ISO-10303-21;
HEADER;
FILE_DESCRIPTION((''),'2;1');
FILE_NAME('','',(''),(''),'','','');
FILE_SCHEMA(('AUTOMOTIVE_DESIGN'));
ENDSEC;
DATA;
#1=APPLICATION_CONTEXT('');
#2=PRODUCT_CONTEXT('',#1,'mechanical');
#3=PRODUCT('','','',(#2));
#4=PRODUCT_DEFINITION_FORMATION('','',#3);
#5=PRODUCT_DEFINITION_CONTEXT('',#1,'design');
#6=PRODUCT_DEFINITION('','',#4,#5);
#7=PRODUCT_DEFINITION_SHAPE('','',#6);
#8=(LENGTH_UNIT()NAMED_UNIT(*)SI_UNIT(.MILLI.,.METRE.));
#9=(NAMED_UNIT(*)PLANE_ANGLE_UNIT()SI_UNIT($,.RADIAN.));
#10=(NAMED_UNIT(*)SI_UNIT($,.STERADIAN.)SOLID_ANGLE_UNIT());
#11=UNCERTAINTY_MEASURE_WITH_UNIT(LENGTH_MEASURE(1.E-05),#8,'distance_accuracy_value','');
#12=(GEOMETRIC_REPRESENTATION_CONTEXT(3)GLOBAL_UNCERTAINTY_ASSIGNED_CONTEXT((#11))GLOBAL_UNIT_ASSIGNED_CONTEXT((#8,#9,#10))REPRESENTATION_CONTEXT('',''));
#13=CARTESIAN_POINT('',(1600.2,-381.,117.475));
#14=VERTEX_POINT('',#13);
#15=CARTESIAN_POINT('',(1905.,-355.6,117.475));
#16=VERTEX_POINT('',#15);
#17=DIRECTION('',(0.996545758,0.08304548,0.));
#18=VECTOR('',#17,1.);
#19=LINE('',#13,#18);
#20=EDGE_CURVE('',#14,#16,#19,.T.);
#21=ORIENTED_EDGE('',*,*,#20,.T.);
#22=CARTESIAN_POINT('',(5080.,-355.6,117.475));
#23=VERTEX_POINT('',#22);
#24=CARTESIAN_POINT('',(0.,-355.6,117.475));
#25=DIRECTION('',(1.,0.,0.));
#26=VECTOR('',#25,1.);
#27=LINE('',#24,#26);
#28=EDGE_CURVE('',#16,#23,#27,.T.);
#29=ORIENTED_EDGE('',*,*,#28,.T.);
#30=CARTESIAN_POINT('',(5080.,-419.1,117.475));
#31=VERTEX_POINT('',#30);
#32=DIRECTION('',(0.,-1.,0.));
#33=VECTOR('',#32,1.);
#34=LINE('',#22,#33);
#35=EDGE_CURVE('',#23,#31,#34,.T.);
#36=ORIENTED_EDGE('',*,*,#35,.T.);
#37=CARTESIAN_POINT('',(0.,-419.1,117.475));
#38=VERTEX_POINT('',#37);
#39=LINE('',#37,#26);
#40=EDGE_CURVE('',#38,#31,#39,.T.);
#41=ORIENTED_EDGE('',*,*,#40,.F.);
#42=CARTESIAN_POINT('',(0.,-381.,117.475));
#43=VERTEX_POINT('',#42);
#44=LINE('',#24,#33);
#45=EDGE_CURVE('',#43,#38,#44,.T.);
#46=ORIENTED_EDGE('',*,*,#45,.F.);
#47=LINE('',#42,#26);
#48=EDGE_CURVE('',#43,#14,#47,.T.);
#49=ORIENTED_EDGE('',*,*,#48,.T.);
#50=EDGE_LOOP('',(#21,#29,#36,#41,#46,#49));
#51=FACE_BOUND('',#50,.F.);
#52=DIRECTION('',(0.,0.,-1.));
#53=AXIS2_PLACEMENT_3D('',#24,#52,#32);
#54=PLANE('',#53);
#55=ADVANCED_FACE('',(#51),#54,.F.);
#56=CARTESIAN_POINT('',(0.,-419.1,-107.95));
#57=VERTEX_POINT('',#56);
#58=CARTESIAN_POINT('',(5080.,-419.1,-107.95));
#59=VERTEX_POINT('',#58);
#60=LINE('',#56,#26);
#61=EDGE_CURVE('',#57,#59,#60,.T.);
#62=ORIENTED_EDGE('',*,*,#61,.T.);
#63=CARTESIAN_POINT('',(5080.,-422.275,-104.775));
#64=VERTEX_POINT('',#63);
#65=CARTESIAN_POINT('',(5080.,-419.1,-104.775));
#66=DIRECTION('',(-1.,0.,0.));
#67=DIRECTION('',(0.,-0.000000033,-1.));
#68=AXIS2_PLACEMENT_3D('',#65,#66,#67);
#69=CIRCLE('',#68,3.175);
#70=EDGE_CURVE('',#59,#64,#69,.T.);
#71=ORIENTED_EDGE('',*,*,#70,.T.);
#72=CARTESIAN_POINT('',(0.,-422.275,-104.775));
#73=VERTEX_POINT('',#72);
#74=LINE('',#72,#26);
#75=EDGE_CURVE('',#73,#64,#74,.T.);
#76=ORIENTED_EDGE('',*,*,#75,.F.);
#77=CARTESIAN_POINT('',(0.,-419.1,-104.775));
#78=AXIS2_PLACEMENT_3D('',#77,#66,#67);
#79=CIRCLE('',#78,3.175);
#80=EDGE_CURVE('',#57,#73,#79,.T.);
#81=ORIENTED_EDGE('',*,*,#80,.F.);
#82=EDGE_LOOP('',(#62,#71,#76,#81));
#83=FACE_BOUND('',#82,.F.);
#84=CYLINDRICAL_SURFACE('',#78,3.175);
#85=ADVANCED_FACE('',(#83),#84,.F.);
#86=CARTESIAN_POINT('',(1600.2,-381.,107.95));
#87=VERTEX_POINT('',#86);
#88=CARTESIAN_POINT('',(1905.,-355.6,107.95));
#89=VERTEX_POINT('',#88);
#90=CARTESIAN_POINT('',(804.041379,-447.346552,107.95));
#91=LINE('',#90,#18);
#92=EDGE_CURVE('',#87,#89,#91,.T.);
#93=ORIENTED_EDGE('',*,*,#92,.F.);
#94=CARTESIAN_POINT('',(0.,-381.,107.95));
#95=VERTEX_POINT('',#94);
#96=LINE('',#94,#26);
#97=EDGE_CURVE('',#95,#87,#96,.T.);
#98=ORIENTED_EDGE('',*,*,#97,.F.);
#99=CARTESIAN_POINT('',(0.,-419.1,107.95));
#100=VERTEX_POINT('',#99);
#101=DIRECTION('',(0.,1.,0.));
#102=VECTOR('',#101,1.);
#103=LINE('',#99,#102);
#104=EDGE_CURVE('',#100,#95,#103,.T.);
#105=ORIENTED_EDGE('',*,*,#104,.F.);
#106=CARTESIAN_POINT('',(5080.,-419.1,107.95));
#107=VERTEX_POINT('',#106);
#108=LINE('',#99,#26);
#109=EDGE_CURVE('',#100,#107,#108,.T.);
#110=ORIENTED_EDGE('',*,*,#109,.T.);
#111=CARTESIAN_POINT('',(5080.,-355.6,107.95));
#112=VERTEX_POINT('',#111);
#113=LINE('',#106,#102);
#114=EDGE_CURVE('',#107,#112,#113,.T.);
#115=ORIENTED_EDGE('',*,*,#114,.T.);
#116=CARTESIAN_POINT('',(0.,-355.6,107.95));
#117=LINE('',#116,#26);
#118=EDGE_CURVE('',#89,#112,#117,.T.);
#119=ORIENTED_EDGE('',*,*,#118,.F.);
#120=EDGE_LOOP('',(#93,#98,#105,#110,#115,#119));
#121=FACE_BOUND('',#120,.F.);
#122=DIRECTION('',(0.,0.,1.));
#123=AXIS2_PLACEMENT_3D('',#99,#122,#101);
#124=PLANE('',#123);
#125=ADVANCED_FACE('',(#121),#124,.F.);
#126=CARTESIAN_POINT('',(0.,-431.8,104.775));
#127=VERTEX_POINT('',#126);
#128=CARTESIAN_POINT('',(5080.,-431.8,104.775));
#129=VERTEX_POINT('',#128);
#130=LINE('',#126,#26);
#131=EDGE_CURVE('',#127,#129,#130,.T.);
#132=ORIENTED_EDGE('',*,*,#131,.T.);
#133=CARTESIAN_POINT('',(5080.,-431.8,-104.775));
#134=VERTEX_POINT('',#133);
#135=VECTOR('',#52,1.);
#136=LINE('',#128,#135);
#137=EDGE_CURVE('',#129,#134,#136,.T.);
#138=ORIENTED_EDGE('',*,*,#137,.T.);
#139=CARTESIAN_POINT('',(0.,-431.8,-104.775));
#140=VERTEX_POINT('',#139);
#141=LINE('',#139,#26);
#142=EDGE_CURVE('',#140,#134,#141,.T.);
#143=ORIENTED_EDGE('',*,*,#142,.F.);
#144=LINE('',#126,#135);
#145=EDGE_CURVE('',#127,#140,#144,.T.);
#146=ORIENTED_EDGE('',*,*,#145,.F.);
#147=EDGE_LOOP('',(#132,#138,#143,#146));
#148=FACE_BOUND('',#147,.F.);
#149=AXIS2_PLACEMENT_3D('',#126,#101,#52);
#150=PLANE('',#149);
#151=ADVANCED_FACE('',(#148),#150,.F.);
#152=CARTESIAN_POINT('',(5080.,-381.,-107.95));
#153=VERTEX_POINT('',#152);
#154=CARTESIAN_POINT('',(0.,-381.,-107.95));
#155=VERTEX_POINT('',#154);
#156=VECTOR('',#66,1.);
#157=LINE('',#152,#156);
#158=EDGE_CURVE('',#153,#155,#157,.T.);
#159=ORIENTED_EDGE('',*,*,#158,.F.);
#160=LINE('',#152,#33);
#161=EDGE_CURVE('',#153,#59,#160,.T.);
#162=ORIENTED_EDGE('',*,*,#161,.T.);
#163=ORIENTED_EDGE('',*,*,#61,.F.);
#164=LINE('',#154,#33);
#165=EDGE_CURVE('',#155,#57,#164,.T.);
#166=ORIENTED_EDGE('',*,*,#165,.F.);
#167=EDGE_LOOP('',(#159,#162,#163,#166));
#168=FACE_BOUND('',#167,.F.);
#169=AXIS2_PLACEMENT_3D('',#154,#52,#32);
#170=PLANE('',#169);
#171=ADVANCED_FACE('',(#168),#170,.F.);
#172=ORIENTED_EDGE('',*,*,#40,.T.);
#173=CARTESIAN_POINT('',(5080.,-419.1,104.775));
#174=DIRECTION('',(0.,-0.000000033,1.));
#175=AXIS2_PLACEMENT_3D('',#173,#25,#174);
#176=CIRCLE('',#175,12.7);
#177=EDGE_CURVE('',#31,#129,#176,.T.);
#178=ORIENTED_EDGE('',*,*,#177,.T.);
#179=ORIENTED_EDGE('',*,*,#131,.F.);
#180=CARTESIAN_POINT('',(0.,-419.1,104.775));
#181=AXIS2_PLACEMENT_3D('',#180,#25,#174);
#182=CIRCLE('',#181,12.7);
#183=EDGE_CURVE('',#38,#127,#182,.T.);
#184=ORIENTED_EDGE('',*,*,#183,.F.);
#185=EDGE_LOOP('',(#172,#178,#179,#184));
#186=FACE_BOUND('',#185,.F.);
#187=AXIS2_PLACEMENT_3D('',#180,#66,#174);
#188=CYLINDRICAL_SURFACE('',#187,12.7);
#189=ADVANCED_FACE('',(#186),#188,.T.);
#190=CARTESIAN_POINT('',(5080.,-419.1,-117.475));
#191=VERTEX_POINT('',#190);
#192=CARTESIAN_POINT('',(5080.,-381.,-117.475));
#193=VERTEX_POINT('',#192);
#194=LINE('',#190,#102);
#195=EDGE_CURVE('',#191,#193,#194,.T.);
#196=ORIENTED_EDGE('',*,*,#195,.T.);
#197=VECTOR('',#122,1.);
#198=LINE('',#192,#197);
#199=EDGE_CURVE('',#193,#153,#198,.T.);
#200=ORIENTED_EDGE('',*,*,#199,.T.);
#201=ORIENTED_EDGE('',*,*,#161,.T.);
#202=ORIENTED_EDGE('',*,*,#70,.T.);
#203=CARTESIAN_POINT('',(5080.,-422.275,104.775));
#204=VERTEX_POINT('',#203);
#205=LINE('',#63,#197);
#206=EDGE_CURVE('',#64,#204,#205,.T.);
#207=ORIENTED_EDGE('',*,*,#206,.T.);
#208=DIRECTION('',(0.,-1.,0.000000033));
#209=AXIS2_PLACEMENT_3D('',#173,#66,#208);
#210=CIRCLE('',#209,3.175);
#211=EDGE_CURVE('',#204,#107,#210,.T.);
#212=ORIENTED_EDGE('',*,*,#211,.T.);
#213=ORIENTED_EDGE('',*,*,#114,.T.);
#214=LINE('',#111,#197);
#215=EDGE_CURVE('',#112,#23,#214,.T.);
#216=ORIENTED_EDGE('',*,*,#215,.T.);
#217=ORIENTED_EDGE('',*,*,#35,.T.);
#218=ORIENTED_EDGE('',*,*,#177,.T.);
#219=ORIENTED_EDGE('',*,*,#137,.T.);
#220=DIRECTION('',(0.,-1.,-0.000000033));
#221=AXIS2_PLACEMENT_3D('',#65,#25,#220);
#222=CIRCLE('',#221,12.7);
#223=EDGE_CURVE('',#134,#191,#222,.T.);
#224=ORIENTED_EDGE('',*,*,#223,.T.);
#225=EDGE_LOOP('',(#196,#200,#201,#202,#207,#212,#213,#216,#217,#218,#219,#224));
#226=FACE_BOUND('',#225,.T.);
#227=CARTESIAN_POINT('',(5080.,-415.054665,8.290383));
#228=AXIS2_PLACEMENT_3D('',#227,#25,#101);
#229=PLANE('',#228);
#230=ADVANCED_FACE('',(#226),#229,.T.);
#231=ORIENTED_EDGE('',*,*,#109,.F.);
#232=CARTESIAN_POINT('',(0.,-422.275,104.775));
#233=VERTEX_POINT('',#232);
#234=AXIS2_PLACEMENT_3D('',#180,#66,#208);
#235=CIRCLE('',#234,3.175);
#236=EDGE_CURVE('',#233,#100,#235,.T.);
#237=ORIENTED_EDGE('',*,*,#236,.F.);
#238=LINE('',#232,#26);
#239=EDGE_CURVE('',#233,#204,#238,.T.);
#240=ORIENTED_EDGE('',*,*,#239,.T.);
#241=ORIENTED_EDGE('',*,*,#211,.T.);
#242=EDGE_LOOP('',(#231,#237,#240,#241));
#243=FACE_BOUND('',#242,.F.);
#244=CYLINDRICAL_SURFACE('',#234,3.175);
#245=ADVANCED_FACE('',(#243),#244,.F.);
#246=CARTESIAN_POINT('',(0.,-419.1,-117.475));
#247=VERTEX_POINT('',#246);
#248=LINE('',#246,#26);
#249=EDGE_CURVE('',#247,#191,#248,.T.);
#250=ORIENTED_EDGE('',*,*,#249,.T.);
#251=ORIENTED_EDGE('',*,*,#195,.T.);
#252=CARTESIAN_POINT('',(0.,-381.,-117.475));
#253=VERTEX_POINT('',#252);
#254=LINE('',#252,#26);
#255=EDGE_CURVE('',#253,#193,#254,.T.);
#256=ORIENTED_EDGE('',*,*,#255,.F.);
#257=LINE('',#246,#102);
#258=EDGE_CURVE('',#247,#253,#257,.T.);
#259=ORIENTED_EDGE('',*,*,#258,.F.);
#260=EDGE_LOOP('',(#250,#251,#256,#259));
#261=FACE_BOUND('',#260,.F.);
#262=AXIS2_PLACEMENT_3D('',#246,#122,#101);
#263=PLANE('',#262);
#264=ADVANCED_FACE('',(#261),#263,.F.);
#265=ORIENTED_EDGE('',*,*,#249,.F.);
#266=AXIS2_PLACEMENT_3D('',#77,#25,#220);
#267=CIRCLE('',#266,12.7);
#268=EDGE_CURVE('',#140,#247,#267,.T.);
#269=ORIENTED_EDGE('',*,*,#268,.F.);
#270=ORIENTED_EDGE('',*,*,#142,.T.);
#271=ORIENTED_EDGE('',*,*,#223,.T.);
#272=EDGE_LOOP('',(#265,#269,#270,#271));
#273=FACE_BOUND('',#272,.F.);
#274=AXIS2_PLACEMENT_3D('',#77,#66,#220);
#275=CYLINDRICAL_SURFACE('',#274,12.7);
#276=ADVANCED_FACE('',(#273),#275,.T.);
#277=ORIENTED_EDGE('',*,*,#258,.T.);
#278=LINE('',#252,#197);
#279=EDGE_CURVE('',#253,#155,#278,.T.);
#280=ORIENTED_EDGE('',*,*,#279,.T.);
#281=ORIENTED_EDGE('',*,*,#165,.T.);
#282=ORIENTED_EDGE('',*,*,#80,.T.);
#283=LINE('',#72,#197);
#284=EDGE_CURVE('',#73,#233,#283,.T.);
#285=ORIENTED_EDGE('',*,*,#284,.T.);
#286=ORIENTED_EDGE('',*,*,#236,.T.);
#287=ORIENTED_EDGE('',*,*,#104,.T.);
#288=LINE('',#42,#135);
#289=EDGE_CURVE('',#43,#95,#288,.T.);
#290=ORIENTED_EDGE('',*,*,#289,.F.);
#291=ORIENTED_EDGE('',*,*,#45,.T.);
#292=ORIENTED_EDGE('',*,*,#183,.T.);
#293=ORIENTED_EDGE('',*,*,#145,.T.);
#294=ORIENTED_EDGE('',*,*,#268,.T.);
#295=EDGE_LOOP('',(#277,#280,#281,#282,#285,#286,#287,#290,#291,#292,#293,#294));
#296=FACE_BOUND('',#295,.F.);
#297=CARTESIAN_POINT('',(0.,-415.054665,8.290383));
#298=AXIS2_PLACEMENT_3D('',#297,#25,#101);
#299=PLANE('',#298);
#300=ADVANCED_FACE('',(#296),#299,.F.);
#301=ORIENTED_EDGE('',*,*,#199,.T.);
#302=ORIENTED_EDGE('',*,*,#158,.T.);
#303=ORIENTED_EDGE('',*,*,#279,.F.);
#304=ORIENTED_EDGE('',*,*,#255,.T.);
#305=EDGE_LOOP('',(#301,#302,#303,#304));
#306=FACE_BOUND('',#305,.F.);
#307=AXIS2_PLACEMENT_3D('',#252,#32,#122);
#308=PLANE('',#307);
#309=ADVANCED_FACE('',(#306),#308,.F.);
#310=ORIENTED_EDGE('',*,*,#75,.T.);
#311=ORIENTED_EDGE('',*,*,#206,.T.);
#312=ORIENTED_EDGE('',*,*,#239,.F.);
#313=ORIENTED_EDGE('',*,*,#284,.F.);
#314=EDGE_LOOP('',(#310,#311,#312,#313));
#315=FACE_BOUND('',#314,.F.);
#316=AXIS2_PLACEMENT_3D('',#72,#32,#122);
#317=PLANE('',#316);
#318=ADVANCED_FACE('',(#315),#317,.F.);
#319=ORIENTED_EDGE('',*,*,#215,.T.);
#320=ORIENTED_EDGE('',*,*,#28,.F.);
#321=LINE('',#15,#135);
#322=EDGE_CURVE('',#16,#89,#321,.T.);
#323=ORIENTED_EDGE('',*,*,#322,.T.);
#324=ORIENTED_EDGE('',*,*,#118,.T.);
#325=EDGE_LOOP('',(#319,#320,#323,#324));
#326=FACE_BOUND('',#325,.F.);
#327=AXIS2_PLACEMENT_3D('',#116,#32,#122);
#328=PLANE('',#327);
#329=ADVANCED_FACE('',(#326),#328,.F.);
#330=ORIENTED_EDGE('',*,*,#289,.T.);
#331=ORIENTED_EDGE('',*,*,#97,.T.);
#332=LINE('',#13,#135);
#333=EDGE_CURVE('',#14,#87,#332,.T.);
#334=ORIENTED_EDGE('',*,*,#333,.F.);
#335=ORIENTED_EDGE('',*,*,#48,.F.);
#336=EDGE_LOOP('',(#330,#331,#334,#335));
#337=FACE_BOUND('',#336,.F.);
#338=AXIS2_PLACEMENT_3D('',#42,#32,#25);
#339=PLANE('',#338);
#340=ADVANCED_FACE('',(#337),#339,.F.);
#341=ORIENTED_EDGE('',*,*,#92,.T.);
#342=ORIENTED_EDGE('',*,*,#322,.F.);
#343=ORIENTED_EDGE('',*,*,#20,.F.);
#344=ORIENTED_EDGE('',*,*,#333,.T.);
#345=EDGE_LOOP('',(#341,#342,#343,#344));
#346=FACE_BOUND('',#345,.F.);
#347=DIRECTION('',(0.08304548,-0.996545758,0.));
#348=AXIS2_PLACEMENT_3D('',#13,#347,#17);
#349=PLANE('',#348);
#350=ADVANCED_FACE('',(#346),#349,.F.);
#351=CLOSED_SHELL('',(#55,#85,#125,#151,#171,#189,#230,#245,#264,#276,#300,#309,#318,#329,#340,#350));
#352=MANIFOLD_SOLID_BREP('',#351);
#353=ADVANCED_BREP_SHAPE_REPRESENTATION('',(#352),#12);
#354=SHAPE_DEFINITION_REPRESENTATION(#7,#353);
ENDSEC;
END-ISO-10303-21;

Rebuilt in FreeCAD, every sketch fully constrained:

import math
import FreeCAD as App
import Part
import Sketcher
from FreeCAD import Vector
Q = App.Units.Quantity

doc = App.newDocument("Part")
body = doc.addObject("PartDesign::Body", "Body")

sketch1 = doc.addObject("Sketcher::SketchObject", "Sketch")
body.addObject(sketch1)
sketch1.AttachmentSupport = (doc.YZ_Plane, [""])
sketch1.MapMode = "FlatFace"
sketch1.addGeometry(Part.LineSegment(Vector(-431.8, 104.8, 0), Vector(-431.8, -104.8, 0)), False)
sketch1.addGeometry(Part.ArcOfCircle(Part.Circle(Vector(-419.1, -104.8, 0), Vector(0, 0, 1), 12.7), math.radians(-180), math.radians(-90)), False)
sketch1.addGeometry(Part.LineSegment(Vector(-419.1, -117.5, 0), Vector(-381, -117.5, 0)), False)
sketch1.addGeometry(Part.LineSegment(Vector(-381, -117.5, 0), Vector(-381, -108, 0)), False)
sketch1.addGeometry(Part.LineSegment(Vector(-381, -108, 0), Vector(-419.1, -108, 0)), False)
sketch1.addGeometry(Part.ArcOfCircle(Part.Circle(Vector(-419.1, -104.8, 0), Vector(0, 0, 1), 3.2), math.radians(-180), math.radians(-90)), False)
sketch1.addGeometry(Part.LineSegment(Vector(-422.3, -104.8, 0), Vector(-422.3, 104.8, 0)), False)
sketch1.addGeometry(Part.ArcOfCircle(Part.Circle(Vector(-419.1, 104.8, 0), Vector(0, 0, 1), 3.2), math.radians(90), math.radians(180)), False)
sketch1.addGeometry(Part.LineSegment(Vector(-419.1, 108, 0), Vector(-355.6, 108, 0)), False)
sketch1.addGeometry(Part.LineSegment(Vector(-355.6, 108, 0), Vector(-355.6, 117.5, 0)), False)
sketch1.addGeometry(Part.LineSegment(Vector(-355.6, 117.5, 0), Vector(-419.1, 117.5, 0)), False)
sketch1.addGeometry(Part.ArcOfCircle(Part.Circle(Vector(-419.1, 104.8, 0), Vector(0, 0, 1), 12.7), math.radians(90), math.radians(180)), False)
sketch1.addConstraint(Sketcher.Constraint("Tangent", 0, 2, 1, 1))
sketch1.addConstraint(Sketcher.Constraint("Tangent", 1, 2, 2, 1))
sketch1.addConstraint(Sketcher.Constraint("Coincident", 2, 2, 3, 1))
sketch1.addConstraint(Sketcher.Constraint("Coincident", 3, 2, 4, 1))
sketch1.addConstraint(Sketcher.Constraint("Tangent", 4, 2, 5, 2))
sketch1.addConstraint(Sketcher.Constraint("Tangent", 5, 1, 6, 1))
sketch1.addConstraint(Sketcher.Constraint("Tangent", 6, 2, 7, 2))
sketch1.addConstraint(Sketcher.Constraint("Tangent", 7, 1, 8, 1))
sketch1.addConstraint(Sketcher.Constraint("Coincident", 8, 2, 9, 1))
sketch1.addConstraint(Sketcher.Constraint("Coincident", 9, 2, 10, 1))
sketch1.addConstraint(Sketcher.Constraint("Tangent", 10, 2, 11, 1))
sketch1.addConstraint(Sketcher.Constraint("Tangent", 11, 2, 0, 1))
sketch1.addConstraint(Sketcher.Constraint("Vertical", 0))
sketch1.addConstraint(Sketcher.Constraint("Horizontal", 2))
sketch1.addConstraint(Sketcher.Constraint("Vertical", 3))
sketch1.addConstraint(Sketcher.Constraint("Horizontal", 4))
sketch1.addConstraint(Sketcher.Constraint("Vertical", 6))
sketch1.addConstraint(Sketcher.Constraint("Horizontal", 8))
sketch1.addConstraint(Sketcher.Constraint("Vertical", 9))
sketch1.addConstraint(Sketcher.Constraint("Horizontal", 10))
sketch1.addConstraint(Sketcher.Constraint("Coincident", 5, 3, 1, 3))
sketch1.addConstraint(Sketcher.Constraint("Coincident", 11, 3, 7, 3))
sketch1.addConstraint(Sketcher.Constraint("Equal", 5, 7))
sketch1.addConstraint(Sketcher.Constraint("Radius", 1, Q("0.5 in")))
sketch1.addConstraint(Sketcher.Constraint("DistanceX", 2, 1, 2, 2, Q("1.5 in")))
sketch1.addConstraint(Sketcher.Constraint("DistanceX", 8, 1, 8, 2, Q("2.5 in")))
sketch1.addConstraint(Sketcher.Constraint("DistanceX", 0, 2, -1, 1, Q("17 in")))
sketch1.addConstraint(Sketcher.Constraint("Radius", 5, Q("0.125 in")))
sketch1.addConstraint(Sketcher.Constraint("DistanceY", 0, 2, 0, 1, Q("8.25 in")))
sketch1.addConstraint(Sketcher.Constraint("DistanceY", 3, 2, -1, 1, Q("4.25 in")))
pad1 = doc.addObject("PartDesign::Pad", "Pad")
body.addObject(pad1)
pad1.Profile = sketch1
pad1.Length = Q("200 in")

sketch2 = doc.addObject("Sketcher::SketchObject", "Sketch001")
body.addObject(sketch2)
sketch2.AttachmentSupport = (doc.XY_Plane, [""])
sketch2.MapMode = "FlatFace"
sketch2.AttachmentOffset = App.Placement(Vector(0, 0, 4.625 * 25.4), App.Rotation())
sketch2.addGeometry(Part.LineSegment(Vector(1600, -381, 0), Vector(1905, -356, 0)), False)
sketch2.addGeometry(Part.LineSegment(Vector(1905, -356, 0), Vector(0, -356, 0)), False)
sketch2.addGeometry(Part.LineSegment(Vector(0, -356, 0), Vector(0, -381, 0)), False)
sketch2.addGeometry(Part.LineSegment(Vector(0, -381, 0), Vector(1600, -381, 0)), False)
sketch2.addConstraint(Sketcher.Constraint("Coincident", 0, 2, 1, 1))
sketch2.addConstraint(Sketcher.Constraint("Coincident", 1, 2, 2, 1))
sketch2.addConstraint(Sketcher.Constraint("Coincident", 2, 2, 3, 1))
sketch2.addConstraint(Sketcher.Constraint("Coincident", 3, 2, 0, 1))
sketch2.addConstraint(Sketcher.Constraint("Horizontal", 1))
sketch2.addConstraint(Sketcher.Constraint("Vertical", 2))
sketch2.addConstraint(Sketcher.Constraint("Horizontal", 3))
sketch2.addConstraint(Sketcher.Constraint("PointOnObject", 1, 2, -2))
sketch2.addConstraint(Sketcher.Constraint("DistanceX", 1, 2, 1, 1, Q("75 in")))
sketch2.addConstraint(Sketcher.Constraint("DistanceX", 3, 1, 3, 2, Q("63 in")))
sketch2.addConstraint(Sketcher.Constraint("DistanceY", 2, 2, 2, 1, Q("1 in")))
sketch2.addConstraint(Sketcher.Constraint("DistanceY", 0, 2, -1, 1, Q("14 in")))
pocket1 = doc.addObject("PartDesign::Pocket", "Pocket")
body.addObject(pocket1)
pocket1.Profile = sketch2
pocket1.Type = "ThroughAll"

doc.recompute()
